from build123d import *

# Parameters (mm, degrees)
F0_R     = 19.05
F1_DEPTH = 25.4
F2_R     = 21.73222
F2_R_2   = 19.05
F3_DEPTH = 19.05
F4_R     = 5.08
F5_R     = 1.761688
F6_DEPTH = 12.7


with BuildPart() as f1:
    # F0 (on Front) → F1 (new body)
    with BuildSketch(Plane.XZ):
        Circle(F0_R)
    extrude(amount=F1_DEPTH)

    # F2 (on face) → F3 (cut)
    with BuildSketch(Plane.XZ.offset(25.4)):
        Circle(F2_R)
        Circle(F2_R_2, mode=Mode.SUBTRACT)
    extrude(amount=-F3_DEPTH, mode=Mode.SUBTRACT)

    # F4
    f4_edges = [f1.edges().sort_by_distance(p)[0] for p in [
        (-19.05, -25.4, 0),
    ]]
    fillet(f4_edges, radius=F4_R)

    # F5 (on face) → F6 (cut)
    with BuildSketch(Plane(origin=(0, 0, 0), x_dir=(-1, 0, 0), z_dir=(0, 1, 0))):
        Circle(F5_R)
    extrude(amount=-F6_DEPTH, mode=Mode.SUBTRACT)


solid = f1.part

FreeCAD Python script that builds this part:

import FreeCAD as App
import Part
import Sketcher

V = App.Vector
Q = App.Units.Quantity


def edges_at(feature, points):
    """Names of the edges that pass closest to the given points."""
    edges = feature.Shape.Edges
    near = lambda p: min(range(len(edges)), key=lambda i: edges[i].distToShape(Part.Vertex(*p))[0])
    return sorted({f"Edge{near(p) + 1}" for p in points})

doc = App.newDocument("Part")
body = doc.addObject("PartDesign::Body", "Body")

# Sketch on XZ plane
sketch1 = body.newObject("Sketcher::SketchObject", "Sketch")
sketch1.AttachmentSupport = (doc.getObject("XZ_Plane"), [""])
sketch1.MapMode = "FlatFace"
sketch1.addGeometry(Part.Circle(V(0, 0, 0), V(0, 0, 1), 19), False)
sketch1.addConstraint([
    Sketcher.Constraint("Coincident", 0, 3, -1, 1),
    Sketcher.Constraint("Diameter", 0, Q("1.5 in")),
])
pad1 = body.newObject("PartDesign::Pad", "Pad")
pad1.Profile = sketch1
pad1.Length = Q("1 in")

# Sketch on XZ plane
sketch2 = body.newObject("Sketcher::SketchObject", "Sketch001")
sketch2.AttachmentSupport = (doc.getObject("XZ_Plane"), [""])
sketch2.MapMode = "FlatFace"
sketch2.AttachmentOffset = App.Placement(V(0, 0, 1 * 25.4), App.Rotation())
sketch2.addGeometry([
    Part.Circle(V(0, 0, 0), V(0, 0, 1), 22),
    Part.Circle(V(0, 0, 0), V(0, 0, 1), 19),
], False)
sketch2.addConstraint([
    Sketcher.Constraint("Coincident", 0, 3, -1, 1),
    Sketcher.Constraint("Coincident", 1, 3, -1, 1),
    Sketcher.Constraint("Diameter", 1, Q("1.5 in")),
    Sketcher.Constraint("Diameter", 0, Q("43.46444 mm")),
])
pocket1 = body.newObject("PartDesign::Pocket", "Pocket")
pocket1.Profile = sketch2
pocket1.Length = Q("0.75 in")
doc.recompute()

fillet = body.newObject("PartDesign::Fillet", "Fillet")
fillet.Base = (pocket1, edges_at(pocket1, [(-19.05, -25.4, 0)]))
fillet.Radius = Q("0.2 in")

# Sketch on XZ plane
sketch3 = body.newObject("Sketcher::SketchObject", "Sketch002")
sketch3.AttachmentSupport = (doc.getObject("XZ_Plane"), [""])
sketch3.MapMode = "FlatFace"
sketch3.addGeometry(Part.Circle(V(0, 0, 0), V(0, 0, 1), 1.8), False)
sketch3.addConstraint([
    Sketcher.Constraint("Coincident", 0, 3, -1, 1),
    Sketcher.Constraint("Diameter", 0, Q("3.523376 mm")),
])
pocket2 = body.newObject("PartDesign::Pocket", "Pocket001")
pocket2.Profile = sketch3
pocket2.Length = Q("0.5 in")
pocket2.Reversed = True

doc.recompute()
